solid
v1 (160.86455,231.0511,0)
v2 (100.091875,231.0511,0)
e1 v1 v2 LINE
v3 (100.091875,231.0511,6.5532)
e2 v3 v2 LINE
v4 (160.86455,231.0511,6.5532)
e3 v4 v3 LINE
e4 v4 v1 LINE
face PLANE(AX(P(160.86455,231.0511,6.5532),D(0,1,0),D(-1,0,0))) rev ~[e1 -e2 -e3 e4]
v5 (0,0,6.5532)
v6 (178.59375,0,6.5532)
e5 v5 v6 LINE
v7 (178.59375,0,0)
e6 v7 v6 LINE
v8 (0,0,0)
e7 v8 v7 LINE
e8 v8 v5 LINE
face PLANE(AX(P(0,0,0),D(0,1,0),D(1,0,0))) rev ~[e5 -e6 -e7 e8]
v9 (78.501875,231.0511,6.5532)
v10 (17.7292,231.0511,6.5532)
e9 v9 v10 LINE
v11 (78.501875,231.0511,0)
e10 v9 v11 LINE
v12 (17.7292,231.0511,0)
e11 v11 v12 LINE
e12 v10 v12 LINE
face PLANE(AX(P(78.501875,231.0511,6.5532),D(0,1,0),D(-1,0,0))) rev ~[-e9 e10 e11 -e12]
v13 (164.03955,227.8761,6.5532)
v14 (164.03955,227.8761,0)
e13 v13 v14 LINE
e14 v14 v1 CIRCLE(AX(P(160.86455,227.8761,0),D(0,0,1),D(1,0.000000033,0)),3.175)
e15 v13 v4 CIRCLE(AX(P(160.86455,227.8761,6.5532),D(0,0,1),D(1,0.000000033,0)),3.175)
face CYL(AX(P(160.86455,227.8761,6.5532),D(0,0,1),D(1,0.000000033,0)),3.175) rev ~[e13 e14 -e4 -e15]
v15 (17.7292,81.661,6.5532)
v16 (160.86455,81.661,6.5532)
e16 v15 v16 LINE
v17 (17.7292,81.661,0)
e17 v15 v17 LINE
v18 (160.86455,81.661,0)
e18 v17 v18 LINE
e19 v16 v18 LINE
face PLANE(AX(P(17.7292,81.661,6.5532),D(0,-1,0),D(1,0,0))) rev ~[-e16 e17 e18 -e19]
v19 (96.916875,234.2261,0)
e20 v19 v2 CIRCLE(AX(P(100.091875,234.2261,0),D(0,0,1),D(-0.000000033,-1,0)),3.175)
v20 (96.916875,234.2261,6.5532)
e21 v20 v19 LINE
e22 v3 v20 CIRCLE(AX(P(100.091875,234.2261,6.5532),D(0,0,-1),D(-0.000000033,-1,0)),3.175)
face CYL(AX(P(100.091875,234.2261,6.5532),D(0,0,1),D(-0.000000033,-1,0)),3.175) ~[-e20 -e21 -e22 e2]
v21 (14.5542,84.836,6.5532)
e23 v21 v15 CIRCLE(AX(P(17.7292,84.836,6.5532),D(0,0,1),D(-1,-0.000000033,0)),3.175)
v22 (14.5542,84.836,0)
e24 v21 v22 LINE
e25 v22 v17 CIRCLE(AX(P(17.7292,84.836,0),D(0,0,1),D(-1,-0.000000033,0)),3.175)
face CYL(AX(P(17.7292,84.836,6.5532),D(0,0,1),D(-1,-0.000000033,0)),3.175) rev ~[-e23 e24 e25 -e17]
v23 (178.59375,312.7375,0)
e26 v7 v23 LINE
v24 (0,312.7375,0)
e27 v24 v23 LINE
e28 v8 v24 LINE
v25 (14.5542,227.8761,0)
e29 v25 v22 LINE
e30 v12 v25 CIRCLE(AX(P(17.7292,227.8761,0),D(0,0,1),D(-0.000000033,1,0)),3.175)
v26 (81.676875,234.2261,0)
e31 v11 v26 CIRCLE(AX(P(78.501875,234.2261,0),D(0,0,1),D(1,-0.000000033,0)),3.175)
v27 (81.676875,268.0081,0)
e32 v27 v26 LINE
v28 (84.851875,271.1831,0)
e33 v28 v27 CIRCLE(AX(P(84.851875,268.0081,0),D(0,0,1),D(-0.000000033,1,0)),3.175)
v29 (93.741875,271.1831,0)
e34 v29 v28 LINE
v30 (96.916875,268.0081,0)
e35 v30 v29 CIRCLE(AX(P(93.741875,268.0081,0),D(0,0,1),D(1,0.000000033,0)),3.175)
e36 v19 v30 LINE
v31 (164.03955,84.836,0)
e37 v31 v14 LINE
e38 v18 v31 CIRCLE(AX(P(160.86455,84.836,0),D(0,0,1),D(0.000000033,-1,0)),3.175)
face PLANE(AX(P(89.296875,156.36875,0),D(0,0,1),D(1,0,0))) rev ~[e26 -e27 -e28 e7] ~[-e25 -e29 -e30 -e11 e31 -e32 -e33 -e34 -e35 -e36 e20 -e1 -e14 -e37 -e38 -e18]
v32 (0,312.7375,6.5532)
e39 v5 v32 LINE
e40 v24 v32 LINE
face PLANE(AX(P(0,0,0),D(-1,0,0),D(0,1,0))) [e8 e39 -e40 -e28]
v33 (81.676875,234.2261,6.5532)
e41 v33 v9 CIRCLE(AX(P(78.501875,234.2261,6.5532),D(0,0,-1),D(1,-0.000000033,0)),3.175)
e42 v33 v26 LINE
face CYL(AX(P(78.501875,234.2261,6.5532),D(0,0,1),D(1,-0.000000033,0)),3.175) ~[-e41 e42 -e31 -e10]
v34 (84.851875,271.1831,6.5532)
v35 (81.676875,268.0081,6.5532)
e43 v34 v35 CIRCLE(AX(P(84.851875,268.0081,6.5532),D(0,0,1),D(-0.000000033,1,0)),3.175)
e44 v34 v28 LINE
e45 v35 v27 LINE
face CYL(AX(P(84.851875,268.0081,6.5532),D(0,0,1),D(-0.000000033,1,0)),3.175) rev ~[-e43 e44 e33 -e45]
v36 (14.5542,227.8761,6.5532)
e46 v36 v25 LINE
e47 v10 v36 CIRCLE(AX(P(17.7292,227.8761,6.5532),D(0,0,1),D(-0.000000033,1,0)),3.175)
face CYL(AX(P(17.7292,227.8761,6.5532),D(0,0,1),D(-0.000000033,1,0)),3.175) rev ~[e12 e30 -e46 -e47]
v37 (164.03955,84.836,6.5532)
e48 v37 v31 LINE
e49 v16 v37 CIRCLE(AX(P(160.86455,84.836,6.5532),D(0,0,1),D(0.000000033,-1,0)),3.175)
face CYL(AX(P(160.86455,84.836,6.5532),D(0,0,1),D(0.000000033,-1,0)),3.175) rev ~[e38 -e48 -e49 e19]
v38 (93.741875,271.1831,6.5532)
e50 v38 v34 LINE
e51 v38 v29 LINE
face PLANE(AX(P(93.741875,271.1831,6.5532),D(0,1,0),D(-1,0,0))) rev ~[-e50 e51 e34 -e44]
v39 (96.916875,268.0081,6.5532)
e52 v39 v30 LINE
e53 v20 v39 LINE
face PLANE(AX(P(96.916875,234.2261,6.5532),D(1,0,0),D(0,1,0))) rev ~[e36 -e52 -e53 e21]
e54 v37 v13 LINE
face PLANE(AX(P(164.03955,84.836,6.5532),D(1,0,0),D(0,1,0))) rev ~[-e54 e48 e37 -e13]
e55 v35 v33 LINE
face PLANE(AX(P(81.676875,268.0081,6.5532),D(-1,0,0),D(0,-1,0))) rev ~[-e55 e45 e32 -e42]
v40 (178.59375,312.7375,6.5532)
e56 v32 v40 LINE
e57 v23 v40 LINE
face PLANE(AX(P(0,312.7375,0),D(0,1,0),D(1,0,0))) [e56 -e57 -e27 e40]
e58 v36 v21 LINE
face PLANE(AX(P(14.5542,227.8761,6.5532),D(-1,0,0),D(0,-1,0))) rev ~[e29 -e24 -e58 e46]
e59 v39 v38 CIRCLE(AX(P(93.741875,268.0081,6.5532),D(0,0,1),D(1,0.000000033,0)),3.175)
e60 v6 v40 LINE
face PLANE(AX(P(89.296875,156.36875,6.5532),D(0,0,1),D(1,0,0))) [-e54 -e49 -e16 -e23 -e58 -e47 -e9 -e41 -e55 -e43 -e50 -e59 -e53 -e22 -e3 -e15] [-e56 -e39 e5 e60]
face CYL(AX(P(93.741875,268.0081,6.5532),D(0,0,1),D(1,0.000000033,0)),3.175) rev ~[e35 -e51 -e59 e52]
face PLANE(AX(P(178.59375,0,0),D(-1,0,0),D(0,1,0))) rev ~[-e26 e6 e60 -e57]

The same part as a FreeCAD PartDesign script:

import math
import FreeCAD as App
import Part
import Sketcher
from FreeCAD import Vector
Q = App.Units.Quantity


def add_polygon(sketch, points):
    """Adds a closed chain of lines whose ends are joined by coincident constraints."""
    first, n = sketch.GeometryCount, len(points)
    for a, b in zip(points, points[1:] + points[:1]):
        sketch.addGeometry(Part.LineSegment(App.Vector(*a, 0), App.Vector(*b, 0)), False)
    for i in range(n):
        sketch.addConstraint(Sketcher.Constraint("Coincident", first + i, 2, first + (i + 1) % n, 1))

doc = App.newDocument("Part")
body = doc.addObject("PartDesign::Body", "Body")

# Sketch on XY plane
sketch1 = doc.addObject("Sketcher::SketchObject", "Sketch")
body.addObject(sketch1)
sketch1.AttachmentSupport = (doc.XY_Plane, [""])
sketch1.MapMode = "FlatFace"
add_polygon(sketch1, [(0, 312.7375), (0, 0), (178.59375, 0), (178.59375, 312.7375)])  # lines 0-3
sketch1.addConstraint([
    Sketcher.Constraint("Vertical", 0),
    Sketcher.Constraint("Horizontal", 1),
    Sketcher.Constraint("Vertical", 2),
    Sketcher.Constraint("Horizontal", 3),
    Sketcher.Constraint("Coincident", 0, 2, -1, 1),
    Sketcher.Constraint("DistanceX", 1, 1, 1, 2, Q("7.03125 in")),
    Sketcher.Constraint("DistanceY", 0, 2, 0, 1, Q("12.3125 in")),
])
pad1 = doc.addObject("PartDesign::Pad", "Pad")
body.addObject(pad1)
pad1.Profile = sketch1
pad1.Length = Q("0.258 in")

# Sketch on XY plane
sketch2 = doc.addObject("Sketcher::SketchObject", "Sketch001")
body.addObject(sketch2)
sketch2.AttachmentSupport = (doc.XY_Plane, [""])
sketch2.MapMode = "FlatFace"
sketch2.AttachmentOffset = App.Placement(Vector(0, 0, 0.258 * 25.4), App.Rotation())
sketch2.addGeometry([
    Part.LineSegment(Vector(78.501875, 231.0511, 0), Vector(17.7292, 231.0511, 0)),  # 0
    Part.ArcOfCircle(Part.Circle(Vector(17.7292, 227.8761, 0), Vector(0, 0, 1), 3.175), math.radians(90.000002), math.radians(179.999998)),  # 1
    Part.LineSegment(Vector(14.5542, 227.8761, 0), Vector(14.5542, 84.836, 0)),  # 2
    Part.ArcOfCircle(Part.Circle(Vector(17.7292, 84.836, 0), Vector(0, 0, 1), 3.175), math.radians(-179.999998), math.radians(-90.000002)),  # 3
    Part.LineSegment(Vector(17.7292, 81.661, 0), Vector(160.86455, 81.661, 0)),  # 4
    Part.ArcOfCircle(Part.Circle(Vector(160.86455, 84.836, 0), Vector(0, 0, 1), 3.175), math.radians(-89.999998), math.radians(-0.000002)),  # 5
    Part.LineSegment(Vector(164.03955, 84.836, 0), Vector(164.03955, 227.8761, 0)),  # 6
    Part.ArcOfCircle(Part.Circle(Vector(160.86455, 227.8761, 0), Vector(0, 0, 1), 3.175), math.radians(0.000002), math.radians(89.999998)),  # 7
    Part.LineSegment(Vector(160.86455, 231.0511, 0), Vector(100.091875, 231.0511, 0)),  # 8
    Part.ArcOfCircle(Part.Circle(Vector(100.091875, 234.2261, 0), Vector(0, 0, 1), 3.175), math.radians(-179.999998), math.radians(-90.000002)),  # 9
    Part.LineSegment(Vector(96.916875, 234.2261, 0), Vector(96.916875, 268.0081, 0)),  # 10
    Part.ArcOfCircle(Part.Circle(Vector(93.741875, 268.0081, 0), Vector(0, 0, 1), 3.175), math.radians(0.000002), math.radians(89.999998)),  # 11
    Part.LineSegment(Vector(93.741875, 271.1831, 0), Vector(84.851875, 271.1831, 0)),  # 12
    Part.ArcOfCircle(Part.Circle(Vector(84.851875, 268.0081, 0), Vector(0, 0, 1), 3.175), math.radians(90.000002), math.radians(179.999998)),  # 13
    Part.LineSegment(Vector(81.676875, 268.0081, 0), Vector(81.676875, 234.2261, 0)),  # 14
    Part.ArcOfCircle(Part.Circle(Vector(78.501875, 234.2261, 0), Vector(0, 0, 1), 3.175), math.radians(-89.999998), math.radians(-0.000002)),  # 15
], False)
sketch2.addConstraint([
    Sketcher.Constraint("Tangent", 0, 2, 1, 1),
    Sketcher.Constraint("Tangent", 1, 2, 2, 1),
    Sketcher.Constraint("Tangent", 2, 2, 3, 1),
    Sketcher.Constraint("Tangent", 3, 2, 4, 1),
    Sketcher.Constraint("Tangent", 4, 2, 5, 1),
    Sketcher.Constraint("Tangent", 5, 2, 6, 1),
    Sketcher.Constraint("Tangent", 6, 2, 7, 1),
    Sketcher.Constraint("Tangent", 7, 2, 8, 1),
    Sketcher.Constraint("Tangent", 8, 2, 9, 2),
    Sketcher.Constraint("Tangent", 9, 1, 10, 1),
    Sketcher.Constraint("Tangent", 10, 2, 11, 1),
    Sketcher.Constraint("Tangent", 11, 2, 12, 1),
    Sketcher.Constraint("Tangent", 12, 2, 13, 1),
    Sketcher.Constraint("Tangent", 13, 2, 14, 1),
    Sketcher.Constraint("Tangent", 14, 2, 15, 2),
    Sketcher.Constraint("Tangent", 15, 1, 0, 1),
    Sketcher.Constraint("Horizontal", 0),
    Sketcher.Constraint("Vertical", 2),
    Sketcher.Constraint("Horizontal", 4),
    Sketcher.Constraint("Vertical", 6),
    Sketcher.Constraint("Horizontal", 8),
    Sketcher.Constraint("Vertical", 10),
    Sketcher.Constraint("Horizontal", 12),
    Sketcher.Constraint("Vertical", 14),
    Sketcher.Constraint("Equal", 1, 3),
    Sketcher.Constraint("Equal", 3, 5),
    Sketcher.Constraint("Equal", 5, 7),
    Sketcher.Constraint("Equal", 7, 9),
    Sketcher.Constraint("Equal", 9, 11),
    Sketcher.Constraint("Equal", 11, 13),
    Sketcher.Constraint("Equal", 13, 15),
    Sketcher.Constraint("Horizontal", 1, 3, 7, 3),
    Sketcher.Constraint("Equal", 0, 8),
    Sketcher.Constraint("Radius", 1, Q("0.125 in")),
    Sketcher.Constraint("DistanceX", 12, 2, 12, 1, Q("0.35 in")),
    Sketcher.Constraint("DistanceY", 10, 1, 10, 2, Q("1.33 in")),
    Sketcher.Constraint("DistanceY", -1, 1, 3, 3, Q("3.34 in")),
    Sketcher.Constraint("DistanceY", 2, 2, 2, 1, Q("5.6315 in")),
    Sketcher.Constraint("DistanceX", -1, 1, 1, 3, Q("0.698 in")),
    Sketcher.Constraint("DistanceX", 4, 1, 4, 2, Q("143.13535 mm")),
])
pocket1 = doc.addObject("PartDesign::Pocket", "Pocket")
body.addObject(pocket1)
pocket1.Profile = sketch2
pocket1.Length = Q("1 in")

doc.recompute()
